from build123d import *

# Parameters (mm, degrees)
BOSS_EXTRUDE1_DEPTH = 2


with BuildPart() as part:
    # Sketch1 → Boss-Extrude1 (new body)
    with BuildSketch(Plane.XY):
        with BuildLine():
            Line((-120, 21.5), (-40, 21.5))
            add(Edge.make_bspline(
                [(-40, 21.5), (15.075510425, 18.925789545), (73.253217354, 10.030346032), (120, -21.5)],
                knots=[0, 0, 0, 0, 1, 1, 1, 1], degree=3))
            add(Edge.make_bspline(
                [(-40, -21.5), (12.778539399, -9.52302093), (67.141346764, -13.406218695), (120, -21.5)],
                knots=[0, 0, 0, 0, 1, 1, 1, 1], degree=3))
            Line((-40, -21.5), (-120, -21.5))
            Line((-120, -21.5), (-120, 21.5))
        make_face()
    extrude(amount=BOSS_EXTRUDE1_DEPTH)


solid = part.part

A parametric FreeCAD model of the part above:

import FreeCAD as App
import Part
import Sketcher

V = App.Vector
Q = App.Units.Quantity

doc = App.newDocument("Part")
body = doc.addObject("PartDesign::Body", "Body")

# Sketch on XY plane
sketch1 = body.newObject("Sketcher::SketchObject", "Sketch")
sketch1.AttachmentSupport = (doc.getObject("XY_Plane"), [""])
sketch1.MapMode = "FlatFace"
sketch1.addGeometry(Part.LineSegment(V(-40, 21.5, 0), V(-120, 21.5, 0)), False)
sketch1.addGeometry(Part.LineSegment(V(-120, 21.5, 0), V(-120, -21.5, 0)), False)
sketch1.addGeometry(Part.LineSegment(V(-120, -21.5, 0), V(-40, -21.5, 0)), False)
sketch1.addGeometry(Part.BSplineCurve([V(-40, -21.5, 0), V(12.778539, -9.523021, 0), V(67.141347, -13.406219, 0), V(120, -21.5, 0)], [4, 4], [0, 1], False, 3, [1, 1, 1, 1], False), False)
sketch1.addGeometry(Part.BSplineCurve([V(-40, 21.5, 0), V(15.07551, 18.92579, 0), V(73.253217, 10.030346, 0), V(120, -21.5, 0)], [4, 4], [0, 1], False, 3, [1, 1, 1, 1], False), False)
sketch1.addConstraint(Sketcher.Constraint("Block", 3))
sketch1.addConstraint(Sketcher.Constraint("Block", 4))
sketch1.addConstraint(Sketcher.Constraint("Coincident", 0, 2, 1, 1))
sketch1.addConstraint(Sketcher.Constraint("Coincident", 1, 2, 2, 1))
sketch1.addConstraint(Sketcher.Constraint("Coincident", 2, 2, 3, 1))
sketch1.addConstraint(Sketcher.Constraint("Coincident", 4, 1, 0, 1))
sketch1.addConstraint(Sketcher.Constraint("Horizontal", 0))
sketch1.addConstraint(Sketcher.Constraint("Vertical", 1))
sketch1.addConstraint(Sketcher.Constraint("Horizontal", 2))
sketch1.addConstraint(Sketcher.Constraint("DistanceX", 0, 2, 0, 1, Q("80 mm")))
pad1 = body.newObject("PartDesign::Pad", "Pad")
pad1.Profile = sketch1
pad1.Length = 2

doc.recompute()
